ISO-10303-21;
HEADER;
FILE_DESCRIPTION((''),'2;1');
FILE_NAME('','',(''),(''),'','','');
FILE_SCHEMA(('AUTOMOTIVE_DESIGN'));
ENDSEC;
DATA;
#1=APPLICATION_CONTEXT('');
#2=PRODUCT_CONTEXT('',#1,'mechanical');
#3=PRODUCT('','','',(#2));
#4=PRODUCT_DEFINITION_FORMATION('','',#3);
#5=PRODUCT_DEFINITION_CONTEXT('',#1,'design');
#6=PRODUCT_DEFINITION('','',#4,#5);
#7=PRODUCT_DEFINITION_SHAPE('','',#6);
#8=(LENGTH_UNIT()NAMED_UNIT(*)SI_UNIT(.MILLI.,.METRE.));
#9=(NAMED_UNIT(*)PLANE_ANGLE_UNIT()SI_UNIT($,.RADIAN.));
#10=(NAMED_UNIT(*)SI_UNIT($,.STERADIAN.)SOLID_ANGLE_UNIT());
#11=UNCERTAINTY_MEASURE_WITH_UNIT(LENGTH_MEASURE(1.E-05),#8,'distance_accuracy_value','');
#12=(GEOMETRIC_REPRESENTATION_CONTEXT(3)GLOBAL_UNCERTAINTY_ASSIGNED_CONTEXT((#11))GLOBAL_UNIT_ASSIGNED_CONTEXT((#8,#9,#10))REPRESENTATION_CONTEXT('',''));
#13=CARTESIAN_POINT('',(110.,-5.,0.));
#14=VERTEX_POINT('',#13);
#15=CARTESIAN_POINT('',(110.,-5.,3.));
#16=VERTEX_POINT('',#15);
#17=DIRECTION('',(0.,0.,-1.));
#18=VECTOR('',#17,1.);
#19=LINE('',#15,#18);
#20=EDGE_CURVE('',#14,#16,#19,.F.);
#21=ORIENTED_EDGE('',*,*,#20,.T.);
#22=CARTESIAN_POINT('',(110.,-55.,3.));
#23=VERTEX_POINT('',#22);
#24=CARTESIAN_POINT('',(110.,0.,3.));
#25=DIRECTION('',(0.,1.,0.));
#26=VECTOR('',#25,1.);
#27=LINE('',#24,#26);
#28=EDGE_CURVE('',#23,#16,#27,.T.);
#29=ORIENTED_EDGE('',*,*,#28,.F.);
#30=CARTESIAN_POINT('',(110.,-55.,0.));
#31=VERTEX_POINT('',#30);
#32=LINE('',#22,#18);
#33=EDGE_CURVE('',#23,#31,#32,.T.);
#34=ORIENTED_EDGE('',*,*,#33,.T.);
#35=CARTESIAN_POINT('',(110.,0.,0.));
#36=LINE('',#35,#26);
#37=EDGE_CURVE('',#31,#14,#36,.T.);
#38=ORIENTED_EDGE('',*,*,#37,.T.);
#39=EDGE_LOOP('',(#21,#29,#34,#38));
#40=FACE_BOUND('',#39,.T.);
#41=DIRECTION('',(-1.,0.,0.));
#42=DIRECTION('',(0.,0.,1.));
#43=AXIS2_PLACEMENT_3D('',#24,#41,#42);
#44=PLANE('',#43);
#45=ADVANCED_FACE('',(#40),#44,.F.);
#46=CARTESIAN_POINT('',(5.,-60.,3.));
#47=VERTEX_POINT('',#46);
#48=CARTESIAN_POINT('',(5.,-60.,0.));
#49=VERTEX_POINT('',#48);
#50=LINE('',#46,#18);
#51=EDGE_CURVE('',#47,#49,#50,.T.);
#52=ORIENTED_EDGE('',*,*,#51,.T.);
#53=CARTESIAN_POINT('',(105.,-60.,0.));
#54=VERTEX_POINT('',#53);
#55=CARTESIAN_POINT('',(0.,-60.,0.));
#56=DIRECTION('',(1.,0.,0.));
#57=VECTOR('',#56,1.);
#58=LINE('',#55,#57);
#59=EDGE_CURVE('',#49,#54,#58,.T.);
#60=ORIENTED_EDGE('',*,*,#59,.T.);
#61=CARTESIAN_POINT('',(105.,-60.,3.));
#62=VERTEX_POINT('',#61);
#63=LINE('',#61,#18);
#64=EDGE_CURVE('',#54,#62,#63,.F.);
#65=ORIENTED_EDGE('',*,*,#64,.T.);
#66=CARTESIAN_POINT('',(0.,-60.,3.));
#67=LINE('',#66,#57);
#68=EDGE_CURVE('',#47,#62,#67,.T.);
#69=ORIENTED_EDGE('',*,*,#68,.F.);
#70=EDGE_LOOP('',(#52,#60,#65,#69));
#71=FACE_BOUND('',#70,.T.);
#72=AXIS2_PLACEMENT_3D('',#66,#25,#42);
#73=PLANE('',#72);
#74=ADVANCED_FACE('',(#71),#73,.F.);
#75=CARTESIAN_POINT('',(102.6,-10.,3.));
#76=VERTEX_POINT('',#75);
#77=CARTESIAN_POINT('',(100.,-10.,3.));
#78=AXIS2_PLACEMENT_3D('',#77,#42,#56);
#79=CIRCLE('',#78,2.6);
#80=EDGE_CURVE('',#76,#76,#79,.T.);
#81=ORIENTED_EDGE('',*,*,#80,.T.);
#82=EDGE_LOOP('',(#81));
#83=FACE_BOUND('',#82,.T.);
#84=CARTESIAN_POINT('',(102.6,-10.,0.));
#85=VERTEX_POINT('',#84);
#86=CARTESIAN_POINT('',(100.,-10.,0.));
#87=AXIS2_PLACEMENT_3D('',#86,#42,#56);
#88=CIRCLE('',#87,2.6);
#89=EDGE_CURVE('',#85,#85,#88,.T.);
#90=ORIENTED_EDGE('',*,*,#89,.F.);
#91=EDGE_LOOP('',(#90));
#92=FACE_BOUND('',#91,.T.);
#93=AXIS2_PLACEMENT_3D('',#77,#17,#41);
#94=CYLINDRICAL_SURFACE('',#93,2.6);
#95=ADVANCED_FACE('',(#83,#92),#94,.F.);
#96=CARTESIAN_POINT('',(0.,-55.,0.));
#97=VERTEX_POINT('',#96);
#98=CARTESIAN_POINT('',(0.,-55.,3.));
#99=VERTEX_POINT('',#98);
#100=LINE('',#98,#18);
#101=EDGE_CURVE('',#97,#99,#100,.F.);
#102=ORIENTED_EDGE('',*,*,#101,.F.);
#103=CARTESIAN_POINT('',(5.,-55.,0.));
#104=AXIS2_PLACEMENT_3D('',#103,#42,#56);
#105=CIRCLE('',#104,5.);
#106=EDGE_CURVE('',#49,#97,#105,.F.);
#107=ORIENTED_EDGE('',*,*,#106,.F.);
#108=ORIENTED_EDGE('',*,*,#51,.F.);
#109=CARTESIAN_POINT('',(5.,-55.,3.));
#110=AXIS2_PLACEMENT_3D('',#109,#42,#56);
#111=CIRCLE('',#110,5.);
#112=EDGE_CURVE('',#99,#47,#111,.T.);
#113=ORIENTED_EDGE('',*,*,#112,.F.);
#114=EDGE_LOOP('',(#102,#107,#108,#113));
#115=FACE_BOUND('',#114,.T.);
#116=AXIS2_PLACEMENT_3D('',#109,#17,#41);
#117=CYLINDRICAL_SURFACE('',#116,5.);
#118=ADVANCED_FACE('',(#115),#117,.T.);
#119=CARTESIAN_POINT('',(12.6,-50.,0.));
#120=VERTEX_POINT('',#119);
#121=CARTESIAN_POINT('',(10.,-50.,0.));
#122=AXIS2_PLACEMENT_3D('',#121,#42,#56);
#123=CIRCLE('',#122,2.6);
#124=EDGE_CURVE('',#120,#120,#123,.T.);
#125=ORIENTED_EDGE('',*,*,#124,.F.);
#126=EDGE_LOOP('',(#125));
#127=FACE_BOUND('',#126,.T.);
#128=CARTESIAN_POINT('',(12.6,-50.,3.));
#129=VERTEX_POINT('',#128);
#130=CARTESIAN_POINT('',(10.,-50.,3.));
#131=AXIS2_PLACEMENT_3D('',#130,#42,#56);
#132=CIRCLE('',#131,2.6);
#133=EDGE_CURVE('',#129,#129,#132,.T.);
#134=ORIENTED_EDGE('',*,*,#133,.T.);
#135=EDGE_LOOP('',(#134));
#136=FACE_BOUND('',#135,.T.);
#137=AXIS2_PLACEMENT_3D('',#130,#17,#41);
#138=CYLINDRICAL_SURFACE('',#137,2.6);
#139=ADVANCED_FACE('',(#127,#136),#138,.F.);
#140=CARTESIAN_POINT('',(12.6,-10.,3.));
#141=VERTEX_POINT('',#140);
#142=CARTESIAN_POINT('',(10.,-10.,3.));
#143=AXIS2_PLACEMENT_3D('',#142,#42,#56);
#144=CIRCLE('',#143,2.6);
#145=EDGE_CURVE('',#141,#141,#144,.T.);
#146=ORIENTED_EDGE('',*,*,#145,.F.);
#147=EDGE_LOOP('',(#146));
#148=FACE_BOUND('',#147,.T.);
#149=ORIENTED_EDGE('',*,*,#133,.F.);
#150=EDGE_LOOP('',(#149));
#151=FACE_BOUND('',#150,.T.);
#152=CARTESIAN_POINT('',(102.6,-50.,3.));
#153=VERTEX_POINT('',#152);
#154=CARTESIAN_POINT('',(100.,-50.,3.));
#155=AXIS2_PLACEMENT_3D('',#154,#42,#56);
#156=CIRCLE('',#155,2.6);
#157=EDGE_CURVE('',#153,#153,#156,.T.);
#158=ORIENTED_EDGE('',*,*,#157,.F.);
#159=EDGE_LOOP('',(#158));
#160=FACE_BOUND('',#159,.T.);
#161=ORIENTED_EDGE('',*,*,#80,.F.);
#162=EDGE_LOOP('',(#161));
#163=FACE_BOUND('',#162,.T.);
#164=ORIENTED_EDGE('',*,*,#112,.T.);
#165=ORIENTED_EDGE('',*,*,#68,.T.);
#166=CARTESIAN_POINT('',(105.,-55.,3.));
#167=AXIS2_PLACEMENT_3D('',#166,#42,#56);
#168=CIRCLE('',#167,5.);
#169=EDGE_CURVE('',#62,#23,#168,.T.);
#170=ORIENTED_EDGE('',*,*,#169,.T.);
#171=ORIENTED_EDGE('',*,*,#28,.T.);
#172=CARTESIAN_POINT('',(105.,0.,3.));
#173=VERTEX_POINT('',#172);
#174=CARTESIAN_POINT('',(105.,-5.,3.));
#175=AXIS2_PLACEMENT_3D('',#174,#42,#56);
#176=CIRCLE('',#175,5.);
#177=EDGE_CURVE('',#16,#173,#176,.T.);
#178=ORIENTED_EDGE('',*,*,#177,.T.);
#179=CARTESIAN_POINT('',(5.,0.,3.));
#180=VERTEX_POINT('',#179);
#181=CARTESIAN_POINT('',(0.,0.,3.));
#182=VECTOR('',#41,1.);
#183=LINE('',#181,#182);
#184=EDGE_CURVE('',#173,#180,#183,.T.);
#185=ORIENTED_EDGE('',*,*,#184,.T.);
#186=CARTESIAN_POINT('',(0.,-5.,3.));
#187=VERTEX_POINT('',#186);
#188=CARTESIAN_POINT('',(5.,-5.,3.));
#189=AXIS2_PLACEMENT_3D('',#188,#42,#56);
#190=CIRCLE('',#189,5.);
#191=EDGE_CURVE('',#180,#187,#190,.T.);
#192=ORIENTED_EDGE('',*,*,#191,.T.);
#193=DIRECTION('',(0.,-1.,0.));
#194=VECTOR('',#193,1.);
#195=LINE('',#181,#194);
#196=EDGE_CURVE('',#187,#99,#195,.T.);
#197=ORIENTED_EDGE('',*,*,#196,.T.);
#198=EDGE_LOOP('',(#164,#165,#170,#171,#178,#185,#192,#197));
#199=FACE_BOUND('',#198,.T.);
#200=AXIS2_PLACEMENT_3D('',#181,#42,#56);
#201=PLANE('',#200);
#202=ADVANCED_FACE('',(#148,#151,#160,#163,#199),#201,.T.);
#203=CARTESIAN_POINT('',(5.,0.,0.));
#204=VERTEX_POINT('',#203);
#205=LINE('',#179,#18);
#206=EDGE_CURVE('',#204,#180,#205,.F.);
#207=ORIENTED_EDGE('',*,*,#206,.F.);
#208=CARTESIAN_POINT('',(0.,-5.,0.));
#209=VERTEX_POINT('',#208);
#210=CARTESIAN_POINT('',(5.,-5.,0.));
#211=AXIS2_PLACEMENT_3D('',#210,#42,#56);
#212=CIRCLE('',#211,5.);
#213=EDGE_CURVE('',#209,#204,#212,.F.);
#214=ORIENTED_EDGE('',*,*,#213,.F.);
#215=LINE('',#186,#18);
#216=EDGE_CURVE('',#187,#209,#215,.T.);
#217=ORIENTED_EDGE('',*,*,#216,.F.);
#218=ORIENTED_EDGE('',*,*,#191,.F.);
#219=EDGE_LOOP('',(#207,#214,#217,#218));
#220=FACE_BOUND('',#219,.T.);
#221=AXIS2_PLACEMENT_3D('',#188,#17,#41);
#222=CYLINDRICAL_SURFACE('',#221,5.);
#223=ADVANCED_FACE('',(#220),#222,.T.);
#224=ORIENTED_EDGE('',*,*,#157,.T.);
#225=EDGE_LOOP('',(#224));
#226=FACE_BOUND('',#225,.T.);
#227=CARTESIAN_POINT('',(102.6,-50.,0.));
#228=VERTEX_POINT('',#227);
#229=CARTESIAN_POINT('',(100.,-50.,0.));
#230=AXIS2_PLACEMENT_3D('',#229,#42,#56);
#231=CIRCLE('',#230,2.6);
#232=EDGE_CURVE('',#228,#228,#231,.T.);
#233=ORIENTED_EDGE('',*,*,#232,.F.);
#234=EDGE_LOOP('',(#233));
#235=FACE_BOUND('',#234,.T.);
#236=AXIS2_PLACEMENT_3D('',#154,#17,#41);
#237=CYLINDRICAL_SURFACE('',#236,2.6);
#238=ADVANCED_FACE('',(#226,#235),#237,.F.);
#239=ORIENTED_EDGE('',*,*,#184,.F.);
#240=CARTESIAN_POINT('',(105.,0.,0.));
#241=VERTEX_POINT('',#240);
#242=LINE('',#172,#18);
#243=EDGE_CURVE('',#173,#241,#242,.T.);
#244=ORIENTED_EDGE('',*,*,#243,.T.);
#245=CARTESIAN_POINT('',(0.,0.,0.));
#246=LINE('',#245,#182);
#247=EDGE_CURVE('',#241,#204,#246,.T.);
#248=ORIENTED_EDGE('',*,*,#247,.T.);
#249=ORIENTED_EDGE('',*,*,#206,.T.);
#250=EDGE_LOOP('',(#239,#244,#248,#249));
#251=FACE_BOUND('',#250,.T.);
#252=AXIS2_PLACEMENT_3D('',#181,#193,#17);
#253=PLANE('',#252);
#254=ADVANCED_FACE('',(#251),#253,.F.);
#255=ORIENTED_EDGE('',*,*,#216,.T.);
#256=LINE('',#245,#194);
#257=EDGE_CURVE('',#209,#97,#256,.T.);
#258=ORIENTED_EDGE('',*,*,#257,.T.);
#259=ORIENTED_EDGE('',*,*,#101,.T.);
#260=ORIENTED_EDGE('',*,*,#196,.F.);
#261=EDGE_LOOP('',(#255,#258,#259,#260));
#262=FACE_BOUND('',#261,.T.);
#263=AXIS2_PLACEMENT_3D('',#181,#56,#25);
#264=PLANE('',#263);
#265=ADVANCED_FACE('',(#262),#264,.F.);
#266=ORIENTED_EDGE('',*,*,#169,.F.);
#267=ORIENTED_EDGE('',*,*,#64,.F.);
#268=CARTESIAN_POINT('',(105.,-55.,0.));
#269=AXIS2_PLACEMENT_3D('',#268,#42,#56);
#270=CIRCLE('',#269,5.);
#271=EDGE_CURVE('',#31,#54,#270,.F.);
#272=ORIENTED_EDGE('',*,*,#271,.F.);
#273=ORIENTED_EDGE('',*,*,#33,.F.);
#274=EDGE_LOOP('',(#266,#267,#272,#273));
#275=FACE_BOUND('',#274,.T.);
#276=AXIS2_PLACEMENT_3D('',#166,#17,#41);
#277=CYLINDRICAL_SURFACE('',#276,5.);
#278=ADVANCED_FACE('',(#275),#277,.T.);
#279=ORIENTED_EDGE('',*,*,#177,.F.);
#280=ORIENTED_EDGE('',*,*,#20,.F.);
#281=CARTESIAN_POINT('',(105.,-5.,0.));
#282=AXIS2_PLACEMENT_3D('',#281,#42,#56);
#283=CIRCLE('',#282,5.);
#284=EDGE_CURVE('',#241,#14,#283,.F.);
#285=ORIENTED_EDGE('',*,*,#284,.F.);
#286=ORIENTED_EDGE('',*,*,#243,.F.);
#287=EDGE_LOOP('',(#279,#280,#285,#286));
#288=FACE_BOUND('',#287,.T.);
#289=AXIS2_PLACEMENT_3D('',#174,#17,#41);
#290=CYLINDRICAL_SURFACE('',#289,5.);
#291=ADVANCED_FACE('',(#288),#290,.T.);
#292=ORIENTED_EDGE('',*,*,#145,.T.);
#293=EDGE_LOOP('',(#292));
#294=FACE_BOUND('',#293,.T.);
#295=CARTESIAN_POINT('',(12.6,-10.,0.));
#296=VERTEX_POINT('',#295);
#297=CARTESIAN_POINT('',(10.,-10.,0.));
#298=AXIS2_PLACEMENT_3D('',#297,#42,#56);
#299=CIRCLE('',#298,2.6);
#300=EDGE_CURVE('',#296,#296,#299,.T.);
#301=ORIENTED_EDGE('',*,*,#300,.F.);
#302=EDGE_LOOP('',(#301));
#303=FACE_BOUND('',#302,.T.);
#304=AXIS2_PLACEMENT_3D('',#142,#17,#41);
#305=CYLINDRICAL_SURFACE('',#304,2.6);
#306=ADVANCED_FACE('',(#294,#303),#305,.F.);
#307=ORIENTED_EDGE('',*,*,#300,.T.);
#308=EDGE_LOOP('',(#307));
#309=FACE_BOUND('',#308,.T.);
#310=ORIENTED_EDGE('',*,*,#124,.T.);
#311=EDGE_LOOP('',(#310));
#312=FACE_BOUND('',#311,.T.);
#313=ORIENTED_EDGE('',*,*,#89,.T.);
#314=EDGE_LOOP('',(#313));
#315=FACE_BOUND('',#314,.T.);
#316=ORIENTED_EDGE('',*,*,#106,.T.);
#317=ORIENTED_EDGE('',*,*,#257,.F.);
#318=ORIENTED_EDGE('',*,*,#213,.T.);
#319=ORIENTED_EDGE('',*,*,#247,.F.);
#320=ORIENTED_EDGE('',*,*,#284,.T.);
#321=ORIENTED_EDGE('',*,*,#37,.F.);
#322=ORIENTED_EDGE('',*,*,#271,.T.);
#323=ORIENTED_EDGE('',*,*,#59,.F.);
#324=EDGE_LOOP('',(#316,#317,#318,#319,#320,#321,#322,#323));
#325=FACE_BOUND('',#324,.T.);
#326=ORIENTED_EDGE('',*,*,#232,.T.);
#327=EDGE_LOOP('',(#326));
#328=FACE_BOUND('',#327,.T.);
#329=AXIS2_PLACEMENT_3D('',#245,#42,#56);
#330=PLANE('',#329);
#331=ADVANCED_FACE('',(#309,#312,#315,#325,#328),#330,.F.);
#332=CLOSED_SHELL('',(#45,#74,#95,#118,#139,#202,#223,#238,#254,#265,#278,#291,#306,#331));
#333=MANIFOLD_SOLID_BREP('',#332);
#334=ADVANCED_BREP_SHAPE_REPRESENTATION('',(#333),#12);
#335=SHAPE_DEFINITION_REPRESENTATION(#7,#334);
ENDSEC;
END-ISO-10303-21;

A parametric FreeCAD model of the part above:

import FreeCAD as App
import Part
import Sketcher
from FreeCAD import Vector


def edges_at(feature, points):
    """Names of the edges that pass closest to the given points."""
    edges = feature.Shape.Edges
    near = lambda p: min(range(len(edges)), key=lambda i: edges[i].distToShape(Part.Vertex(*p))[0])
    return sorted({f"Edge{near(p) + 1}" for p in points})

doc = App.newDocument("Part")
body = doc.addObject("PartDesign::Body", "Body")

sketch1 = body.newObject("Sketcher::SketchObject", "Sketch")
sketch1.AttachmentSupport = (doc.getObject("XY_Plane"), [""])
sketch1.MapMode = "FlatFace"
sketch1.addGeometry([
    Part.LineSegment(Vector(0, 0, 0), Vector(0, -60, 0)),
    Part.LineSegment(Vector(0, -60, 0), Vector(110, -60, 0)),
    Part.LineSegment(Vector(110, -60, 0), Vector(110, 0, 0)),
    Part.LineSegment(Vector(110, 0, 0), Vector(0, 0, 0)),
    Part.Circle(Vector(10, -50, 0), Vector(0, 0, 1), 2.6),
    Part.Circle(Vector(100, -50, 0), Vector(0, 0, 1), 2.6),
    Part.Circle(Vector(10, -10, 0), Vector(0, 0, 1), 2.6),
    Part.Circle(Vector(100, -10, 0), Vector(0, 0, 1), 2.6),
], False)
sketch1.addConstraint([
    Sketcher.Constraint("Coincident", 0, 2, 1, 1),
    Sketcher.Constraint("Coincident", 1, 2, 2, 1),
    Sketcher.Constraint("Coincident", 2, 2, 3, 1),
    Sketcher.Constraint("Coincident", 3, 2, 0, 1),
    Sketcher.Constraint("Vertical", 0),
    Sketcher.Constraint("Horizontal", 1),
    Sketcher.Constraint("Vertical", 2),
    Sketcher.Constraint("Horizontal", 3),
    Sketcher.Constraint("Coincident", 3, 2, -1, 1),
    Sketcher.Constraint("Equal", 4, 5),
    Sketcher.Constraint("Equal", 5, 6),
    Sketcher.Constraint("Equal", 6, 7),
    Sketcher.Constraint("Horizontal", 4, 3, 5, 3),
    Sketcher.Constraint("Horizontal", 6, 3, 7, 3),
    Sketcher.Constraint("Vertical", 4, 3, 6, 3),
    Sketcher.Constraint("Vertical", 5, 3, 7, 3),
    Sketcher.Constraint("Diameter", 4, 5.2),
    Sketcher.Constraint("DistanceX", 1, 1, 1, 2, 110.0),
    Sketcher.Constraint("DistanceY", 0, 2, 0, 1, 60.0),
    Sketcher.Constraint("DistanceX", -1, 1, 4, 3, 10.0),
    Sketcher.Constraint("DistanceY", 4, 3, -1, 1, 50.0),
    Sketcher.Constraint("DistanceX", -1, 1, 5, 3, 100.0),
    Sketcher.Constraint("DistanceY", 6, 3, -1, 1, 10.0),
])
pad1 = body.newObject("PartDesign::Pad", "Pad")
pad1.Profile = sketch1
pad1.Length = 3
doc.recompute()

fillet = body.newObject("PartDesign::Fillet", "Fillet")
fillet.Base = (pad1, edges_at(pad1, [
    (0, 0, 1.5),
    (110, 0, 1.5),
    (110, -60, 1.5),
    (0, -60, 1.5),
]))
fillet.Radius = 5

doc.recompute()
